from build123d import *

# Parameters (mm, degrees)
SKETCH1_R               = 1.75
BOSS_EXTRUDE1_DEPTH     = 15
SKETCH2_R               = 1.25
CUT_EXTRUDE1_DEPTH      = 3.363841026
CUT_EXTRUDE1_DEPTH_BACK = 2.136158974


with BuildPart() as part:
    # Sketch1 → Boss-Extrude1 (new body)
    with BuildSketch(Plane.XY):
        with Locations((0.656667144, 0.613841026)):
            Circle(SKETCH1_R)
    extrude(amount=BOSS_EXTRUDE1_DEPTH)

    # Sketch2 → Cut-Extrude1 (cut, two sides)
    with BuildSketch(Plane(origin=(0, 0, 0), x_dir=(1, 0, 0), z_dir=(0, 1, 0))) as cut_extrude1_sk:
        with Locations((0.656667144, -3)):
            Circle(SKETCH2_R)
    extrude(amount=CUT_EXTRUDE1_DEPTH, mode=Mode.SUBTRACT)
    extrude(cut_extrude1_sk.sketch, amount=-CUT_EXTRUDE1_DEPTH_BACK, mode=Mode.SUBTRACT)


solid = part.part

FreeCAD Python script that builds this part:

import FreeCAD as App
import Part
import Sketcher
from FreeCAD import Vector

doc = App.newDocument("Part")
params = doc.addObject("Spreadsheet::Sheet", "Params")
for row, (alias, value) in enumerate([
    ("sketch1_diameter", "3.5 mm"),
    ("pad1_length", "15 mm"),
    ("sketch2_diameter", "2.5 mm"),
], start=1):
    params.set(f"A{row}", alias)
    params.set(f"B{row}", "=" + value)
    params.setAlias(f"B{row}", alias)

body = doc.addObject("PartDesign::Body", "Body")

# Sketch on XY plane
sketch1 = body.newObject("Sketcher::SketchObject", "Sketch")
sketch1.AttachmentSupport = (doc.getObject("XY_Plane"), [""])
sketch1.MapMode = "FlatFace"
sketch1.addGeometry(Part.Circle(Vector(0.7, 0.6, 0), Vector(0, 0, 1), 1.8), False)
sketch1.addConstraint([
    Sketcher.Constraint("Diameter", 0, 3.5),
    Sketcher.Constraint("DistanceY", -1, 1, 0, 3, 0.613841),
    Sketcher.Constraint("DistanceX", -1, 1, 0, 3, 0.656667),
])
sketch1.setExpression("Constraints[0]", "Params.sketch1_diameter")
pad1 = body.newObject("PartDesign::Pad", "Pad")
pad1.Profile = sketch1
pad1.setExpression("Length", "Params.pad1_length")

# Sketch on XZ plane
sketch2 = body.newObject("Sketcher::SketchObject", "Sketch001")
sketch2.AttachmentSupport = (doc.getObject("XZ_Plane"), [""])
sketch2.MapMode = "FlatFace"
sketch2.addGeometry(Part.Circle(Vector(0.7, 3, 0), Vector(0, 0, 1), 1.2), False)
sketch2.addConstraint([
    Sketcher.Constraint("Diameter", 0, 2.5),
    Sketcher.Constraint("DistanceY", -1, 1, 0, 3, 3.0),
    Sketcher.Constraint("DistanceX", -1, 1, 0, 3, 0.656667),
])
sketch2.setExpression("Constraints[0]", "Params.sketch2_diameter")
pocket1 = body.newObject("PartDesign::Pocket", "Pocket")
pocket1.Profile = sketch2
pocket1.Type = "ThroughAll"
pocket1.Midplane = True

doc.recompute()
